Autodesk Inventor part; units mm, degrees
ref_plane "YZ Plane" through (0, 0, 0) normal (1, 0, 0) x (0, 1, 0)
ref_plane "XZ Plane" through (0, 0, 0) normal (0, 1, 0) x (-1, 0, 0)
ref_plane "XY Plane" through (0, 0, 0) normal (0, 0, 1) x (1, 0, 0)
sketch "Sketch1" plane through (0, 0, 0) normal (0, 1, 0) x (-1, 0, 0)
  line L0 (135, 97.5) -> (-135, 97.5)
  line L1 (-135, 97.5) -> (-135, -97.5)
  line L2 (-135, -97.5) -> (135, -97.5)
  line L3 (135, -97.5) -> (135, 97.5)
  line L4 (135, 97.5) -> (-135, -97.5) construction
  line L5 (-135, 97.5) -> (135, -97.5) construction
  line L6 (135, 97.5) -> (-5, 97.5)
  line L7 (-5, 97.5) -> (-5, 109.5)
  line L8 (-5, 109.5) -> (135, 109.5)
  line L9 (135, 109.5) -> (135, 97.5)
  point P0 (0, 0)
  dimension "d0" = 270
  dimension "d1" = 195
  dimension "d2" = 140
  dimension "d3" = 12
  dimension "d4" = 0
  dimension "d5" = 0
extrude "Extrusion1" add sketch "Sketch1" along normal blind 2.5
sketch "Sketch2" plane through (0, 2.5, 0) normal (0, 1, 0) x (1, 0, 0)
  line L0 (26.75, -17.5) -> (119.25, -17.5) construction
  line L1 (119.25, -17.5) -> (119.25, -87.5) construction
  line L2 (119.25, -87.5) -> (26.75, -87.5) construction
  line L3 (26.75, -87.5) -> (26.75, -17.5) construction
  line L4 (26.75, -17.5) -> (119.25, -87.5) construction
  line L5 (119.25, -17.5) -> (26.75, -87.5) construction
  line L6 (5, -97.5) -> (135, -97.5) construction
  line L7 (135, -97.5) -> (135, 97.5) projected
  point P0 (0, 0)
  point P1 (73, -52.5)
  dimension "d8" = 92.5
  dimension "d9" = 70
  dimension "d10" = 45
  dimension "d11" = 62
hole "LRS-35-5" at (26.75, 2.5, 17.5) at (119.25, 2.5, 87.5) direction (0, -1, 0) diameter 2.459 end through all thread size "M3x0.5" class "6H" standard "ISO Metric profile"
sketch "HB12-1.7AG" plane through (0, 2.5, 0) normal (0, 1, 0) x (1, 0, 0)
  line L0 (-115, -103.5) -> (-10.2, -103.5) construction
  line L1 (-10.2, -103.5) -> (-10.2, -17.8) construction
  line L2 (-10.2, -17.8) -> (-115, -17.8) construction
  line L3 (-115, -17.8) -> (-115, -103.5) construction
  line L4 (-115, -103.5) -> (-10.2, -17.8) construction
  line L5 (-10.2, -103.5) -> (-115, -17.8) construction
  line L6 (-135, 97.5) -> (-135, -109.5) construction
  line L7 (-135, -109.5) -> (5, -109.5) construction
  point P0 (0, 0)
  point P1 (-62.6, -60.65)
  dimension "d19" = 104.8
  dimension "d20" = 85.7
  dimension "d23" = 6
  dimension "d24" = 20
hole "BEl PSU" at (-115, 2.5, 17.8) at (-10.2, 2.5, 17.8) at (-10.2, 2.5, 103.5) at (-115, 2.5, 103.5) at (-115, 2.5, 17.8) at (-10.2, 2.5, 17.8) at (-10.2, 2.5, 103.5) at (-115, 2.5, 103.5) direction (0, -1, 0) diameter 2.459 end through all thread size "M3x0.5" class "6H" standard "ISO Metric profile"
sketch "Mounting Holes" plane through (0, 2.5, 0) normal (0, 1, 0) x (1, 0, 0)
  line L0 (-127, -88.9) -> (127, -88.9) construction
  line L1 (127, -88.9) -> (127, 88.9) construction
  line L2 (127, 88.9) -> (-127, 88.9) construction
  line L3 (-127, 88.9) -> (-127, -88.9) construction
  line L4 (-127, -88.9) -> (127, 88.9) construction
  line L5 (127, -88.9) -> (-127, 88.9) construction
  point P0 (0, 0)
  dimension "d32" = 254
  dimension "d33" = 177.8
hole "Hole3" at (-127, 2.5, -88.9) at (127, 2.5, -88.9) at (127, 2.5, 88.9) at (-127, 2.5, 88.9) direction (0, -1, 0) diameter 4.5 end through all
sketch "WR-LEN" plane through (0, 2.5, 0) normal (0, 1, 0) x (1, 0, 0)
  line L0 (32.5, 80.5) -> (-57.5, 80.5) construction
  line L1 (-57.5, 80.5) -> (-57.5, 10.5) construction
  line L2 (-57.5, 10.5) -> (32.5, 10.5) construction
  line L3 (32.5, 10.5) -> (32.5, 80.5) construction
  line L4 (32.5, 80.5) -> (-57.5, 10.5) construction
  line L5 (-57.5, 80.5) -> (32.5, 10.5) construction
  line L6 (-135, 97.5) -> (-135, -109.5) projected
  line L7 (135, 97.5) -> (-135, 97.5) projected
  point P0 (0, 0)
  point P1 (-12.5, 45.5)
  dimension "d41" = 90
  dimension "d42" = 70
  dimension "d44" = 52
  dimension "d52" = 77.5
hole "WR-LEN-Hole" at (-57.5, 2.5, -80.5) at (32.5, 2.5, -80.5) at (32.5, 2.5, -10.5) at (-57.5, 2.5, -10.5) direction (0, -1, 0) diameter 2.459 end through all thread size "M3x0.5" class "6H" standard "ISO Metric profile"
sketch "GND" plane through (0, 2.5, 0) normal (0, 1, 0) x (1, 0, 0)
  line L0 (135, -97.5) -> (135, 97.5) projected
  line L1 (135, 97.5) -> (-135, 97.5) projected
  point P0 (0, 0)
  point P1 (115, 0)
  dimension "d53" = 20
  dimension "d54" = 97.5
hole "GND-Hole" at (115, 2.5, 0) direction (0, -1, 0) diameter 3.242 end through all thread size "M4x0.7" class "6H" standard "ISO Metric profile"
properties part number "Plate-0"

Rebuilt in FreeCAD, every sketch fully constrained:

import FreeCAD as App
import Part
import Sketcher

V = App.Vector

doc = App.newDocument("Part")
body = doc.addObject("PartDesign::Body", "Body")

# Sketch on XZ plane
sketch1 = body.newObject("Sketcher::SketchObject", "Sketch")
sketch1.AttachmentSupport = (doc.getObject("XZ_Plane"), [""])
sketch1.MapMode = "FlatFace"
sketch1.addGeometry(Part.LineSegment(V(-135, -98, 0), V(-135, 110, 0)), False)
sketch1.addGeometry(Part.LineSegment(V(-135, 110, 0), V(5, 110, 0)), False)
sketch1.addGeometry(Part.LineSegment(V(5, 110, 0), V(5, 98, 0)), False)
sketch1.addGeometry(Part.LineSegment(V(5, 98, 0), V(135, 98, 0)), False)
sketch1.addGeometry(Part.LineSegment(V(135, 98, 0), V(135, -98, 0)), False)
sketch1.addGeometry(Part.LineSegment(V(135, -98, 0), V(-135, -98, 0)), False)
sketch1.addConstraint(Sketcher.Constraint("Coincident", 0, 2, 1, 1))
sketch1.addConstraint(Sketcher.Constraint("Coincident", 1, 2, 2, 1))
sketch1.addConstraint(Sketcher.Constraint("Coincident", 2, 2, 3, 1))
sketch1.addConstraint(Sketcher.Constraint("Coincident", 3, 2, 4, 1))
sketch1.addConstraint(Sketcher.Constraint("Coincident", 4, 2, 5, 1))
sketch1.addConstraint(Sketcher.Constraint("Coincident", 5, 2, 0, 1))
sketch1.addConstraint(Sketcher.Constraint("Vertical", 0))
sketch1.addConstraint(Sketcher.Constraint("Horizontal", 1))
sketch1.addConstraint(Sketcher.Constraint("Vertical", 2))
sketch1.addConstraint(Sketcher.Constraint("Horizontal", 3))
sketch1.addConstraint(Sketcher.Constraint("Vertical", 4))
sketch1.addConstraint(Sketcher.Constraint("Horizontal", 5))
sketch1.addConstraint(Sketcher.Constraint("Symmetric", 3, 2, 5, 2, -1, 1))
sketch1.addConstraint(Sketcher.Constraint("DistanceX", 1, 1, 1, 2, 140.0))
sketch1.addConstraint(Sketcher.Constraint("DistanceX", 5, 2, 5, 1, 270.0))
sketch1.addConstraint(Sketcher.Constraint("DistanceY", 2, 2, 2, 1, 12.0))
sketch1.addConstraint(Sketcher.Constraint("DistanceY", 4, 2, 4, 1, 195.0))
pad1 = body.newObject("PartDesign::Pad", "Pad")
pad1.Profile = sketch1
pad1.Length = 2.5
pad1.Reversed = True

# Sketch on XZ plane
sketch2 = body.newObject("Sketcher::SketchObject", "Sketch001")
sketch2.AttachmentSupport = (doc.getObject("XZ_Plane"), [""])
sketch2.MapMode = "FlatFace"
sketch2.AttachmentOffset = App.Placement(V(0, 0, -2.5), App.Rotation())
sketch2.addGeometry(Part.Circle(V(26.8, 17.5, 0), V(0, 0, 1), 1.2), False)
sketch2.addGeometry(Part.Circle(V(119.2, 87.5, 0), V(0, 0, 1), 1.2), False)
sketch2.addConstraint(Sketcher.Constraint("Equal", 0, 1))
sketch2.addConstraint(Sketcher.Constraint("Diameter", 0, 2.459))
sketch2.addConstraint(Sketcher.Constraint("DistanceY", 0, 3, 1, 3, 70.0))
sketch2.addConstraint(Sketcher.Constraint("DistanceY", -1, 1, 0, 3, 17.5))
sketch2.addConstraint(Sketcher.Constraint("DistanceX", 0, 3, 1, 3, 92.5))
sketch2.addConstraint(Sketcher.Constraint("DistanceX", -1, 1, 0, 3, 26.75))
doc.recompute()
hole = body.newObject("PartDesign::Hole", "Hole")
hole.Profile = sketch2
hole.ThreadType = "None"
hole.Diameter = 2.459
hole.DepthType = "ThroughAll"
hole.Reversed = True

# Sketch on XZ plane
sketch3 = body.newObject("Sketcher::SketchObject", "Sketch002")
sketch3.AttachmentSupport = (doc.getObject("XZ_Plane"), [""])
sketch3.MapMode = "FlatFace"
sketch3.AttachmentOffset = App.Placement(V(0, 0, -2.5), App.Rotation())
sketch3.addGeometry(Part.Circle(V(-115, 17.8, 0), V(0, 0, 1), 1.2), False)
sketch3.addGeometry(Part.Circle(V(-10.2, 17.8, 0), V(0, 0, 1), 1.2), False)
sketch3.addGeometry(Part.Circle(V(-10.2, 103.5, 0), V(0, 0, 1), 1.2), False)
sketch3.addGeometry(Part.Circle(V(-115, 103.5, 0), V(0, 0, 1), 1.2), False)
sketch3.addGeometry(Part.Circle(V(-115, 17.8, 0), V(0, 0, 1), 1.2), False)
sketch3.addGeometry(Part.Circle(V(-10.2, 17.8, 0), V(0, 0, 1), 1.2), False)
sketch3.addGeometry(Part.Circle(V(-10.2, 103.5, 0), V(0, 0, 1), 1.2), False)
sketch3.addGeometry(Part.Circle(V(-115, 103.5, 0), V(0, 0, 1), 1.2), False)
sketch3.addConstraint(Sketcher.Constraint("Coincident", 4, 3, 0, 3))
sketch3.addConstraint(Sketcher.Constraint("Coincident", 5, 3, 1, 3))
sketch3.addConstraint(Sketcher.Constraint("Coincident", 6, 3, 2, 3))
sketch3.addConstraint(Sketcher.Constraint("Coincident", 7, 3, 3, 3))
sketch3.addConstraint(Sketcher.Constraint("Equal", 0, 1))
sketch3.addConstraint(Sketcher.Constraint("Equal", 1, 2))
sketch3.addConstraint(Sketcher.Constraint("Equal", 2, 3))
sketch3.addConstraint(Sketcher.Constraint("Equal", 3, 4))
sketch3.addConstraint(Sketcher.Constraint("Equal", 4, 5))
sketch3.addConstraint(Sketcher.Constraint("Equal", 5, 6))
sketch3.addConstraint(Sketcher.Constraint("Equal", 6, 7))
sketch3.addConstraint(Sketcher.Constraint("Horizontal", 0, 3, 1, 3))
sketch3.addConstraint(Sketcher.Constraint("Horizontal", 2, 3, 3, 3))
sketch3.addConstraint(Sketcher.Constraint("Vertical", 1, 3, 2, 3))
sketch3.addConstraint(Sketcher.Constraint("Vertical", 0, 3, 3, 3))
sketch3.addConstraint(Sketcher.Constraint("Diameter", 0, 2.459))
sketch3.addConstraint(Sketcher.Constraint("DistanceX", 0, 3, -1, 1, 115.0))
sketch3.addConstraint(Sketcher.Constraint("DistanceY", -1, 1, 0, 3, 17.8))
sketch3.addConstraint(Sketcher.Constraint("DistanceX", 1, 3, -1, 1, 10.2))
sketch3.addConstraint(Sketcher.Constraint("DistanceY", -1, 1, 2, 3, 103.5))
doc.recompute()
hole2 = body.newObject("PartDesign::Hole", "Hole001")
hole2.Profile = sketch3
hole2.ThreadType = "None"
hole2.Diameter = 2.459
hole2.DepthType = "ThroughAll"
hole2.Reversed = True

# Sketch on XZ plane
sketch4 = body.newObject("Sketcher::SketchObject", "Sketch003")
sketch4.AttachmentSupport = (doc.getObject("XZ_Plane"), [""])
sketch4.MapMode = "FlatFace"
sketch4.AttachmentOffset = App.Placement(V(0, 0, -2.5), App.Rotation())
sketch4.addGeometry(Part.Circle(V(-127, -88.9, 0), V(0, 0, 1), 2.2), False)
sketch4.addGeometry(Part.Circle(V(127, -88.9, 0), V(0, 0, 1), 2.2), False)
sketch4.addGeometry(Part.Circle(V(127, 88.9, 0), V(0, 0, 1), 2.2), False)
sketch4.addGeometry(Part.Circle(V(-127, 88.9, 0), V(0, 0, 1), 2.2), False)
sketch4.addConstraint(Sketcher.Constraint("Equal", 0, 1))
sketch4.addConstraint(Sketcher.Constraint("Equal", 1, 2))
sketch4.addConstraint(Sketcher.Constraint("Equal", 2, 3))
sketch4.addConstraint(Sketcher.Constraint("Symmetric", 0, 3, 2, 3, -1, 1))
sketch4.addConstraint(Sketcher.Constraint("Symmetric", 1, 3, 3, 3, -1, 1))
sketch4.addConstraint(Sketcher.Constraint("Symmetric", 0, 3, 1, 3, -2))
sketch4.addConstraint(Sketcher.Constraint("Diameter", 0, 4.5))
sketch4.addConstraint(Sketcher.Constraint("DistanceX", 0, 3, -1, 1, 127.0))
sketch4.addConstraint(Sketcher.Constraint("DistanceY", 0, 3, -1, 1, 88.9))
doc.recompute()
hole3 = body.newObject("PartDesign::Hole", "Hole002")
hole3.Profile = sketch4
hole3.ThreadType = "None"
hole3.Diameter = 4.5
hole3.DepthType = "ThroughAll"
hole3.Reversed = True

# Sketch on XZ plane
sketch5 = body.newObject("Sketcher::SketchObject", "Sketch004")
sketch5.AttachmentSupport = (doc.getObject("XZ_Plane"), [""])
sketch5.MapMode = "FlatFace"
sketch5.AttachmentOffset = App.Placement(V(0, 0, -2.5), App.Rotation())
sketch5.addGeometry(Part.Circle(V(-57.5, -80.5, 0), V(0, 0, 1), 1.2), False)
sketch5.addGeometry(Part.Circle(V(32.5, -80.5, 0), V(0, 0, 1), 1.2), False)
sketch5.addGeometry(Part.Circle(V(32.5, -10.5, 0), V(0, 0, 1), 1.2), False)
sketch5.addGeometry(Part.Circle(V(-57.5, -10.5, 0), V(0, 0, 1), 1.2), False)
sketch5.addConstraint(Sketcher.Constraint("Equal", 0, 1))
sketch5.addConstraint(Sketcher.Constraint("Equal", 1, 2))
sketch5.addConstraint(Sketcher.Constraint("Equal", 2, 3))
sketch5.addConstraint(Sketcher.Constraint("Horizontal", 0, 3, 1, 3))
sketch5.addConstraint(Sketcher.Constraint("Horizontal", 2, 3, 3, 3))
sketch5.addConstraint(Sketcher.Constraint("Vertical", 1, 3, 2, 3))
sketch5.addConstraint(Sketcher.Constraint("Vertical", 0, 3, 3, 3))
sketch5.addConstraint(Sketcher.Constraint("Diameter", 0, 2.459))
sketch5.addConstraint(Sketcher.Constraint("DistanceX", 0, 3, 1, 3, 90.0))
sketch5.addConstraint(Sketcher.Constraint("DistanceY", 1, 3, 2, 3, 70.0))
sketch5.addConstraint(Sketcher.Constraint("DistanceX", 0, 3, -1, 1, 57.5))
sketch5.addConstraint(Sketcher.Constraint("DistanceY", 0, 3, -1, 1, 80.5))
doc.recompute()
hole4 = body.newObject("PartDesign::Hole", "Hole003")
hole4.Profile = sketch5
hole4.ThreadType = "None"
hole4.Diameter = 2.459
hole4.DepthType = "ThroughAll"
hole4.Reversed = True

# Sketch on XZ plane
sketch6 = body.newObject("Sketcher::SketchObject", "Sketch005")
sketch6.AttachmentSupport = (doc.getObject("XZ_Plane"), [""])
sketch6.MapMode = "FlatFace"
sketch6.AttachmentOffset = App.Placement(V(0, 0, -2.5), App.Rotation())
sketch6.addGeometry(Part.Circle(V(115, 0, 0), V(0, 0, 1), 1.6), False)
sketch6.addConstraint(Sketcher.Constraint("PointOnObject", 0, 3, -1))
sketch6.addConstraint(Sketcher.Constraint("Diameter", 0, 3.242))
sketch6.addConstraint(Sketcher.Constraint("DistanceX", -1, 1, 0, 3, 115.0))
doc.recompute()
hole5 = body.newObject("PartDesign::Hole", "Hole004")
hole5.Profile = sketch6
hole5.ThreadType = "None"
hole5.Diameter = 3.242
hole5.DepthType = "ThroughAll"
hole5.Reversed = True

doc.recompute()
